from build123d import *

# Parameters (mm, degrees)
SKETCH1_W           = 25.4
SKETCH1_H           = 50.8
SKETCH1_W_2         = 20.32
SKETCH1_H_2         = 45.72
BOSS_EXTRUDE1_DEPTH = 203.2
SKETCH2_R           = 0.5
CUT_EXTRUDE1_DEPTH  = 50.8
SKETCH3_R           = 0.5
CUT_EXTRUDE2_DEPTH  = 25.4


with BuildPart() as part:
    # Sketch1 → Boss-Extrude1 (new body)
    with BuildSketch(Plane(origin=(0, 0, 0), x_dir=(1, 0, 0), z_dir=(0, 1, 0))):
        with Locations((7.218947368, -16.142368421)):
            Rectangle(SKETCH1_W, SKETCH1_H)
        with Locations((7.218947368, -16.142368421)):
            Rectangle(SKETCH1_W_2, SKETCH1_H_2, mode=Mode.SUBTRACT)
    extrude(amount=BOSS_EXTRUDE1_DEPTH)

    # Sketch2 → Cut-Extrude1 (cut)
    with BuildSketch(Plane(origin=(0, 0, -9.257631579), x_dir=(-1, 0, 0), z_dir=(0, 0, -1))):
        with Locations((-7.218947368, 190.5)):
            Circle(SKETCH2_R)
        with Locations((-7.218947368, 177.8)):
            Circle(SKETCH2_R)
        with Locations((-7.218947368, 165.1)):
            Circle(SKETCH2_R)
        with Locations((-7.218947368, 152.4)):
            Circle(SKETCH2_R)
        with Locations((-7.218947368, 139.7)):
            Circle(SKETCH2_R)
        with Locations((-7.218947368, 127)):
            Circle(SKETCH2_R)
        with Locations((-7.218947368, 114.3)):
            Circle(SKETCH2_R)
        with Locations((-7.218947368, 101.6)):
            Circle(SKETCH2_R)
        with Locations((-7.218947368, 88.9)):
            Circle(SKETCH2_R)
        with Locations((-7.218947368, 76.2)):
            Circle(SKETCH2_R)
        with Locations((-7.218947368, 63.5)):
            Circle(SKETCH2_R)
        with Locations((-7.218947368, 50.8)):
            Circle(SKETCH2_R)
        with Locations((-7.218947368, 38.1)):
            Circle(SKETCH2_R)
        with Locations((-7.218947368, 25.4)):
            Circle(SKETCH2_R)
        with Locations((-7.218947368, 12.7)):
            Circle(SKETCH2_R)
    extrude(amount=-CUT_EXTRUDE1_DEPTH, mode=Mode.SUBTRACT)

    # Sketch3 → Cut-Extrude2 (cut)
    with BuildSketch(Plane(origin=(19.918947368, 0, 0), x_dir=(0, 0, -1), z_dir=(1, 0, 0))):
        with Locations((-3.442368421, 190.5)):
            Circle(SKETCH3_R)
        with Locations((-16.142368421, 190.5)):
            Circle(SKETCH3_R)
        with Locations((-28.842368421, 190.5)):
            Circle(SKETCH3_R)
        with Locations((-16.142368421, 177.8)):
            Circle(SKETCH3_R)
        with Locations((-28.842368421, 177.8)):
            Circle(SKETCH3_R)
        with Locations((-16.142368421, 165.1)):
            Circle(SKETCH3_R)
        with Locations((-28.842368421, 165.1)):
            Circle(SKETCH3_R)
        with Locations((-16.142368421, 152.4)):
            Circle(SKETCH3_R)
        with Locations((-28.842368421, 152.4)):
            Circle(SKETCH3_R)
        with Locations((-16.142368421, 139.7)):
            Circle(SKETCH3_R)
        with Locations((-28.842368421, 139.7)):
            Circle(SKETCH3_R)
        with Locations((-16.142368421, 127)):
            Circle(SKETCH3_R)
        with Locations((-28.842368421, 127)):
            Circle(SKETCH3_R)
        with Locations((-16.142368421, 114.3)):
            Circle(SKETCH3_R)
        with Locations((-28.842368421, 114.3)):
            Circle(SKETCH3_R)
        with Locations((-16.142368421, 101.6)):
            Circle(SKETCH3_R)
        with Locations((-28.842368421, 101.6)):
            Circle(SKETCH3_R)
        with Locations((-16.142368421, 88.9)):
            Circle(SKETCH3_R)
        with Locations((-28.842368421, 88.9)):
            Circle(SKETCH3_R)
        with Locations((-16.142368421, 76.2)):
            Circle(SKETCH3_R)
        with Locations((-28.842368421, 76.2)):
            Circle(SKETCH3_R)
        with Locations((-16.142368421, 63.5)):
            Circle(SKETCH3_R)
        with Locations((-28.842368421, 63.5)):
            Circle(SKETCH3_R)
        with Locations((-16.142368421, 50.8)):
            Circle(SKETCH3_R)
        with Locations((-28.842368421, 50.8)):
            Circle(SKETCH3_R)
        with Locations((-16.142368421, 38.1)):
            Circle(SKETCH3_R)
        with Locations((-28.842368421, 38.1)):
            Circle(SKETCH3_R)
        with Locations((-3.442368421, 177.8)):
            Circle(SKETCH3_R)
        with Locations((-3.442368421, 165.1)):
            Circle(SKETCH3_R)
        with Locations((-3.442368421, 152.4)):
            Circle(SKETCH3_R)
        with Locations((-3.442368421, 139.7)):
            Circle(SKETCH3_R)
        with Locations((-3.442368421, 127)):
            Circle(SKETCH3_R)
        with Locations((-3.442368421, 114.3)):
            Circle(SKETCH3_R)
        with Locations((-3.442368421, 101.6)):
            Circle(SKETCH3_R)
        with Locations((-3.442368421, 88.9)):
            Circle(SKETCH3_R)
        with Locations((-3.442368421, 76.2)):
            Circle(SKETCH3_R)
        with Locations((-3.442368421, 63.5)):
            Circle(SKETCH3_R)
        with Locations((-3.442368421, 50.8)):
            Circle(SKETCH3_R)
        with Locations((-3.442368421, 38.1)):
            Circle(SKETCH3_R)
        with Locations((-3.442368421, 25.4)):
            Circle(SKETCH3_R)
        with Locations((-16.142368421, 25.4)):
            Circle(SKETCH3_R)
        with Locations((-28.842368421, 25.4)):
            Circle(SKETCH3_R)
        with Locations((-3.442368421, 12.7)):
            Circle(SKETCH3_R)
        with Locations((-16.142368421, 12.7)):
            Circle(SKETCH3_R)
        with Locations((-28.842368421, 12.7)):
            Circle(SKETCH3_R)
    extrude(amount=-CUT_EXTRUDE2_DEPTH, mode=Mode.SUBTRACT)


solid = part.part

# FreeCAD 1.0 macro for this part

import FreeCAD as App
import Part
import Sketcher
Q = App.Units.Quantity


def add_polygon(sketch, points):
    """Adds a closed chain of lines whose ends are joined by coincident constraints."""
    first, n = sketch.GeometryCount, len(points)
    for a, b in zip(points, points[1:] + points[:1]):
        sketch.addGeometry(Part.LineSegment(App.Vector(*a, 0), App.Vector(*b, 0)), False)
    for i in range(n):
        sketch.addConstraint(Sketcher.Constraint("Coincident", first + i, 2, first + (i + 1) % n, 1))

doc = App.newDocument("Part")
body = doc.addObject("PartDesign::Body", "Body")

# Sketch on XZ plane
sketch1 = doc.addObject("Sketcher::SketchObject", "Sketch")
body.addObject(sketch1)
sketch1.AttachmentSupport = (doc.XZ_Plane, [""])
sketch1.MapMode = "FlatFace"
add_polygon(sketch1, [(-5.481053, -9.257632), (-5.481053, 41.542368), (19.918947, 41.542368), (19.918947, -9.257632)])  # lines 0-3
add_polygon(sketch1, [(17.378947, 39.002368), (-2.941053, 39.002368), (-2.941053, -6.717632), (17.378947, -6.717632)])  # lines 4-7
sketch1.addConstraint([
    Sketcher.Constraint("Vertical", 0),
    Sketcher.Constraint("Horizontal", 1),
    Sketcher.Constraint("Vertical", 2),
    Sketcher.Constraint("Horizontal", 3),
    Sketcher.Constraint("Horizontal", 4),
    Sketcher.Constraint("Vertical", 5),
    Sketcher.Constraint("Horizontal", 6),
    Sketcher.Constraint("Vertical", 7),
    Sketcher.Constraint("DistanceX", 1, 1, 1, 2, Q("1 in")),
    Sketcher.Constraint("DistanceY", 0, 1, 0, 2, Q("2 in")),
    Sketcher.Constraint("DistanceX", 4, 2, 4, 1, Q("0.8 in")),
    Sketcher.Constraint("DistanceY", 5, 2, 5, 1, Q("1.8 in")),
    Sketcher.Constraint("DistanceX", 0, 2, 4, 2, Q("0.1 in")),
    Sketcher.Constraint("DistanceY", 4, 2, 0, 2, Q("0.1 in")),
    Sketcher.Constraint("DistanceY", -1, 1, 0, 2, 41.542368),
    Sketcher.Constraint("DistanceX", 0, 2, -1, 1, 5.481053),
])
pad1 = doc.addObject("PartDesign::Pad", "Pad")
body.addObject(pad1)
pad1.Profile = sketch1
pad1.Length = Q("8 in")
pad1.Reversed = True

# Sketch on XY plane
sketch2 = doc.addObject("Sketcher::SketchObject", "Sketch001")
body.addObject(sketch2)
sketch2.AttachmentSupport = (doc.XY_Plane, [""])
sketch2.MapMode = "FlatFace"
sketch2.AttachmentOffset = App.Placement(App.Vector(0, 0, -9.257632), App.Rotation())
sketch2.addGeometry([
    Part.Circle(App.Vector(7.218947, 190.5, 0), App.Vector(0, 0, 1), 0.5),  # 0
    Part.Circle(App.Vector(7.218947, 177.8, 0), App.Vector(0, 0, 1), 0.5),  # 1
    Part.Circle(App.Vector(7.218947, 165.1, 0), App.Vector(0, 0, 1), 0.5),  # 2
    Part.Circle(App.Vector(7.218947, 152.4, 0), App.Vector(0, 0, 1), 0.5),  # 3
    Part.Circle(App.Vector(7.218947, 139.7, 0), App.Vector(0, 0, 1), 0.5),  # 4
    Part.Circle(App.Vector(7.218947, 127, 0), App.Vector(0, 0, 1), 0.5),  # 5
    Part.Circle(App.Vector(7.218947, 114.3, 0), App.Vector(0, 0, 1), 0.5),  # 6
    Part.Circle(App.Vector(7.218947, 101.6, 0), App.Vector(0, 0, 1), 0.5),  # 7
    Part.Circle(App.Vector(7.218947, 88.9, 0), App.Vector(0, 0, 1), 0.5),  # 8
    Part.Circle(App.Vector(7.218947, 76.2, 0), App.Vector(0, 0, 1), 0.5),  # 9
    Part.Circle(App.Vector(7.218947, 63.5, 0), App.Vector(0, 0, 1), 0.5),  # 10
    Part.Circle(App.Vector(7.218947, 50.8, 0), App.Vector(0, 0, 1), 0.5),  # 11
    Part.Circle(App.Vector(7.218947, 38.1, 0), App.Vector(0, 0, 1), 0.5),  # 12
    Part.Circle(App.Vector(7.218947, 25.4, 0), App.Vector(0, 0, 1), 0.5),  # 13
    Part.Circle(App.Vector(7.218947, 12.7, 0), App.Vector(0, 0, 1), 0.5),  # 14
], False)
sketch2.addConstraint([
    Sketcher.Constraint("Equal", 0, 1),
    Sketcher.Constraint("Equal", 1, 2),
    Sketcher.Constraint("Equal", 2, 3),
    Sketcher.Constraint("Equal", 3, 4),
    Sketcher.Constraint("Equal", 4, 5),
    Sketcher.Constraint("Equal", 5, 6),
    Sketcher.Constraint("Equal", 6, 7),
    Sketcher.Constraint("Equal", 7, 8),
    Sketcher.Constraint("Equal", 8, 9),
    Sketcher.Constraint("Equal", 9, 10),
    Sketcher.Constraint("Equal", 10, 11),
    Sketcher.Constraint("Equal", 11, 12),
    Sketcher.Constraint("Equal", 12, 13),
    Sketcher.Constraint("Equal", 13, 14),
    Sketcher.Constraint("Vertical", 0, 3, 1, 3),
    Sketcher.Constraint("Vertical", 1, 3, 2, 3),
    Sketcher.Constraint("Vertical", 2, 3, 3, 3),
    Sketcher.Constraint("Vertical", 3, 3, 4, 3),
    Sketcher.Constraint("Vertical", 4, 3, 5, 3),
    Sketcher.Constraint("Vertical", 5, 3, 6, 3),
    Sketcher.Constraint("Vertical", 6, 3, 7, 3),
    Sketcher.Constraint("Vertical", 7, 3, 8, 3),
    Sketcher.Constraint("Vertical", 8, 3, 9, 3),
    Sketcher.Constraint("Vertical", 9, 3, 10, 3),
    Sketcher.Constraint("Vertical", 10, 3, 11, 3),
    Sketcher.Constraint("Vertical", 11, 3, 12, 3),
    Sketcher.Constraint("Vertical", 12, 3, 13, 3),
    Sketcher.Constraint("Vertical", 13, 3, 14, 3),
    Sketcher.Constraint("DistanceY", -1, 1, 1, 3, Q("7 in")),
    Sketcher.Constraint("DistanceY", -1, 1, 3, 3, Q("6 in")),
    Sketcher.Constraint("DistanceY", -1, 1, 5, 3, Q("5 in")),
    Sketcher.Constraint("DistanceY", -1, 1, 7, 3, Q("4 in")),
    Sketcher.Constraint("DistanceY", -1, 1, 9, 3, Q("3 in")),
    Sketcher.Constraint("DistanceY", -1, 1, 11, 3, Q("2 in")),
    Sketcher.Constraint("DistanceY", -1, 1, 13, 3, Q("1 in")),
    Sketcher.Constraint("DistanceY", 2, 3, 0, 3, Q("1 in")),
    Sketcher.Constraint("DistanceY", 4, 3, 2, 3, Q("1 in")),
    Sketcher.Constraint("DistanceY", 6, 3, 4, 3, Q("1 in")),
    Sketcher.Constraint("DistanceY", 8, 3, 6, 3, Q("1 in")),
    Sketcher.Constraint("DistanceY", 10, 3, 8, 3, Q("1 in")),
    Sketcher.Constraint("DistanceY", 12, 3, 10, 3, Q("1 in")),
    Sketcher.Constraint("DistanceY", 14, 3, 12, 3, Q("1 in")),
    Sketcher.Constraint("DistanceY", -1, 1, 0, 3, Q("7.5 in")),
    Sketcher.Constraint("Diameter", 0, 1.0),
    Sketcher.Constraint("DistanceX", -1, 1, 0, 3, 7.218947),
])
pocket1 = doc.addObject("PartDesign::Pocket", "Pocket")
body.addObject(pocket1)
pocket1.Profile = sketch2
pocket1.Length = Q("2 in")
pocket1.Reversed = True

# Sketch on YZ plane
sketch3 = doc.addObject("Sketcher::SketchObject", "Sketch002")
body.addObject(sketch3)
sketch3.AttachmentSupport = (doc.YZ_Plane, [""])
sketch3.MapMode = "FlatFace"
sketch3.AttachmentOffset = App.Placement(App.Vector(0, 0, 19.918947), App.Rotation())
sketch3.addGeometry([
    Part.Circle(App.Vector(190.5, 3.442368, 0), App.Vector(0, 0, 1), 0.5),  # 0
    Part.Circle(App.Vector(190.5, 16.142368, 0), App.Vector(0, 0, 1), 0.5),  # 1
    Part.Circle(App.Vector(190.5, 28.842368, 0), App.Vector(0, 0, 1), 0.5),  # 2
    Part.Circle(App.Vector(177.8, 16.142368, 0), App.Vector(0, 0, 1), 0.5),  # 3
    Part.Circle(App.Vector(177.8, 28.842368, 0), App.Vector(0, 0, 1), 0.5),  # 4
    Part.Circle(App.Vector(165.1, 16.142368, 0), App.Vector(0, 0, 1), 0.5),  # 5
    Part.Circle(App.Vector(165.1, 28.842368, 0), App.Vector(0, 0, 1), 0.5),  # 6
    Part.Circle(App.Vector(152.4, 16.142368, 0), App.Vector(0, 0, 1), 0.5),  # 7
    Part.Circle(App.Vector(152.4, 28.842368, 0), App.Vector(0, 0, 1), 0.5),  # 8
    Part.Circle(App.Vector(139.7, 16.142368, 0), App.Vector(0, 0, 1), 0.5),  # 9
    Part.Circle(App.Vector(139.7, 28.842368, 0), App.Vector(0, 0, 1), 0.5),  # 10
    Part.Circle(App.Vector(127, 16.142368, 0), App.Vector(0, 0, 1), 0.5),  # 11
    Part.Circle(App.Vector(127, 28.842368, 0), App.Vector(0, 0, 1), 0.5),  # 12
    Part.Circle(App.Vector(114.3, 16.142368, 0), App.Vector(0, 0, 1), 0.5),  # 13
    Part.Circle(App.Vector(114.3, 28.842368, 0), App.Vector(0, 0, 1), 0.5),  # 14
    Part.Circle(App.Vector(101.6, 16.142368, 0), App.Vector(0, 0, 1), 0.5),  # 15
    Part.Circle(App.Vector(101.6, 28.842368, 0), App.Vector(0, 0, 1), 0.5),  # 16
    Part.Circle(App.Vector(88.9, 16.142368, 0), App.Vector(0, 0, 1), 0.5),  # 17
    Part.Circle(App.Vector(88.9, 28.842368, 0), App.Vector(0, 0, 1), 0.5),  # 18
    Part.Circle(App.Vector(76.2, 16.142368, 0), App.Vector(0, 0, 1), 0.5),  # 19
    Part.Circle(App.Vector(76.2, 28.842368, 0), App.Vector(0, 0, 1), 0.5),  # 20
    Part.Circle(App.Vector(63.5, 16.142368, 0), App.Vector(0, 0, 1), 0.5),  # 21
    Part.Circle(App.Vector(63.5, 28.842368, 0), App.Vector(0, 0, 1), 0.5),  # 22
    Part.Circle(App.Vector(50.8, 16.142368, 0), App.Vector(0, 0, 1), 0.5),  # 23
    Part.Circle(App.Vector(50.8, 28.842368, 0), App.Vector(0, 0, 1), 0.5),  # 24
    Part.Circle(App.Vector(38.1, 16.142368, 0), App.Vector(0, 0, 1), 0.5),  # 25
    Part.Circle(App.Vector(38.1, 28.842368, 0), App.Vector(0, 0, 1), 0.5),  # 26
    Part.Circle(App.Vector(177.8, 3.442368, 0), App.Vector(0, 0, 1), 0.5),  # 27
    Part.Circle(App.Vector(165.1, 3.442368, 0), App.Vector(0, 0, 1), 0.5),  # 28
    Part.Circle(App.Vector(152.4, 3.442368, 0), App.Vector(0, 0, 1), 0.5),  # 29
    Part.Circle(App.Vector(139.7, 3.442368, 0), App.Vector(0, 0, 1), 0.5),  # 30
    Part.Circle(App.Vector(127, 3.442368, 0), App.Vector(0, 0, 1), 0.5),  # 31
    Part.Circle(App.Vector(114.3, 3.442368, 0), App.Vector(0, 0, 1), 0.5),  # 32
    Part.Circle(App.Vector(101.6, 3.442368, 0), App.Vector(0, 0, 1), 0.5),  # 33
    Part.Circle(App.Vector(88.9, 3.442368, 0), App.Vector(0, 0, 1), 0.5),  # 34
    Part.Circle(App.Vector(76.2, 3.442368, 0), App.Vector(0, 0, 1), 0.5),  # 35
    Part.Circle(App.Vector(63.5, 3.442368, 0), App.Vector(0, 0, 1), 0.5),  # 36
    Part.Circle(App.Vector(50.8, 3.442368, 0), App.Vector(0, 0, 1), 0.5),  # 37
    Part.Circle(App.Vector(38.1, 3.442368, 0), App.Vector(0, 0, 1), 0.5),  # 38
    Part.Circle(App.Vector(25.4, 3.442368, 0), App.Vector(0, 0, 1), 0.5),  # 39
    Part.Circle(App.Vector(25.4, 16.142368, 0), App.Vector(0, 0, 1), 0.5),  # 40
    Part.Circle(App.Vector(25.4, 28.842368, 0), App.Vector(0, 0, 1), 0.5),  # 41
    Part.Circle(App.Vector(12.7, 3.442368, 0), App.Vector(0, 0, 1), 0.5),  # 42
    Part.Circle(App.Vector(12.7, 16.142368, 0), App.Vector(0, 0, 1), 0.5),  # 43
    Part.Circle(App.Vector(12.7, 28.842368, 0), App.Vector(0, 0, 1), 0.5),  # 44
], False)
sketch3.addConstraint([
    Sketcher.Constraint("Equal", 0, 1),
    Sketcher.Constraint("Equal", 1, 2),
    Sketcher.Constraint("Equal", 2, 3),
    Sketcher.Constraint("Equal", 3, 4),
    Sketcher.Constraint("Equal", 4, 5),
    Sketcher.Constraint("Equal", 5, 6),
    Sketcher.Constraint("Equal", 6, 7),
    Sketcher.Constraint("Equal", 7, 8),
    Sketcher.Constraint("Equal", 8, 9),
    Sketcher.Constraint("Equal", 9, 10),
    Sketcher.Constraint("Equal", 10, 11),
    Sketcher.Constraint("Equal", 11, 12),
    Sketcher.Constraint("Equal", 12, 13),
    Sketcher.Constraint("Equal", 13, 14),
    Sketcher.Constraint("Equal", 14, 15),
    Sketcher.Constraint("Equal", 15, 16),
    Sketcher.Constraint("Equal", 16, 17),
    Sketcher.Constraint("Equal", 17, 18),
    Sketcher.Constraint("Equal", 18, 19),
    Sketcher.Constraint("Equal", 19, 20),
    Sketcher.Constraint("Equal", 20, 21),
    Sketcher.Constraint("Equal", 21, 22),
    Sketcher.Constraint("Equal", 22, 23),
    Sketcher.Constraint("Equal", 23, 24),
    Sketcher.Constraint("Equal", 24, 25),
    Sketcher.Constraint("Equal", 25, 26),
    Sketcher.Constraint("Equal", 26, 27),
    Sketcher.Constraint("Equal", 27, 28),
    Sketcher.Constraint("Equal", 28, 29),
    Sketcher.Constraint("Equal", 29, 30),
    Sketcher.Constraint("Equal", 30, 31),
    Sketcher.Constraint("Equal", 31, 32),
    Sketcher.Constraint("Equal", 32, 33),
    Sketcher.Constraint("Equal", 33, 34),
    Sketcher.Constraint("Equal", 34, 35),
    Sketcher.Constraint("Equal", 35, 36),
    Sketcher.Constraint("Equal", 36, 37),
    Sketcher.Constraint("Equal", 37, 38),
    Sketcher.Constraint("Equal", 38, 39),
    Sketcher.Constraint("Equal", 39, 40),
    Sketcher.Constraint("Equal", 40, 41),
    Sketcher.Constraint("Equal", 41, 42),
    Sketcher.Constraint("Equal", 42, 43),
    Sketcher.Constraint("Equal", 43, 44),
    Sketcher.Constraint("Horizontal", 1, 3, 3, 3),
    Sketcher.Constraint("Horizontal", 2, 3, 4, 3),
    Sketcher.Constraint("Horizontal", 3, 3, 5, 3),
    Sketcher.Constraint("Horizontal", 4, 3, 6, 3),
    Sketcher.Constraint("Horizontal", 5, 3, 7, 3),
    Sketcher.Constraint("Horizontal", 6, 3, 8, 3),
    Sketcher.Constraint("Horizontal", 7, 3, 9, 3),
    Sketcher.Constraint("Horizontal", 8, 3, 10, 3),
    Sketcher.Constraint("Horizontal", 9, 3, 11, 3),
    Sketcher.Constraint("Horizontal", 10, 3, 12, 3),
    Sketcher.Constraint("Horizontal", 11, 3, 13, 3),
    Sketcher.Constraint("Horizontal", 12, 3, 14, 3),
    Sketcher.Constraint("Horizontal", 13, 3, 15, 3),
    Sketcher.Constraint("Horizontal", 14, 3, 16, 3),
    Sketcher.Constraint("Horizontal", 15, 3, 17, 3),
    Sketcher.Constraint("Horizontal", 16, 3, 18, 3),
    Sketcher.Constraint("Horizontal", 17, 3, 19, 3),
    Sketcher.Constraint("Horizontal", 18, 3, 20, 3),
    Sketcher.Constraint("Horizontal", 19, 3, 21, 3),
    Sketcher.Constraint("Horizontal", 20, 3, 22, 3),
    Sketcher.Constraint("Horizontal", 21, 3, 23, 3),
    Sketcher.Constraint("Horizontal", 22, 3, 24, 3),
    Sketcher.Constraint("Horizontal", 23, 3, 25, 3),
    Sketcher.Constraint("Horizontal", 24, 3, 26, 3),
    Sketcher.Constraint("Horizontal", 0, 3, 27, 3),
    Sketcher.Constraint("Horizontal", 27, 3, 28, 3),
    Sketcher.Constraint("Horizontal", 28, 3, 29, 3),
    Sketcher.Constraint("Horizontal", 29, 3, 30, 3),
    Sketcher.Constraint("Horizontal", 30, 3, 31, 3),
    Sketcher.Constraint("Horizontal", 31, 3, 32, 3),
    Sketcher.Constraint("Horizontal", 32, 3, 33, 3),
    Sketcher.Constraint("Horizontal", 33, 3, 34, 3),
    Sketcher.Constraint("Horizontal", 34, 3, 35, 3),
    Sketcher.Constraint("Horizontal", 35, 3, 36, 3),
    Sketcher.Constraint("Horizontal", 36, 3, 37, 3),
    Sketcher.Constraint("Horizontal", 37, 3, 38, 3),
    Sketcher.Constraint("Horizontal", 38, 3, 39, 3),
    Sketcher.Constraint("Horizontal", 25, 3, 40, 3),
    Sketcher.Constraint("Horizontal", 26, 3, 41, 3),
    Sketcher.Constraint("Horizontal", 39, 3, 42, 3),
    Sketcher.Constraint("Horizontal", 40, 3, 43, 3),
    Sketcher.Constraint("Horizontal", 41, 3, 44, 3),
    Sketcher.Constraint("Vertical", 0, 3, 1, 3),
    Sketcher.Constraint("Vertical", 1, 3, 2, 3),
    Sketcher.Constraint("Vertical", 3, 3, 4, 3),
    Sketcher.Constraint("Vertical", 5, 3, 6, 3),
    Sketcher.Constraint("Vertical", 7, 3, 8, 3),
    Sketcher.Constraint("Vertical", 9, 3, 10, 3),
    Sketcher.Constraint("Vertical", 11, 3, 12, 3),
    Sketcher.Constraint("Vertical", 13, 3, 14, 3),
    Sketcher.Constraint("Vertical", 15, 3, 16, 3),
    Sketcher.Constraint("Vertical", 17, 3, 18, 3),
    Sketcher.Constraint("Vertical", 19, 3, 20, 3),
    Sketcher.Constraint("Vertical", 21, 3, 22, 3),
    Sketcher.Constraint("Vertical", 23, 3, 24, 3),
    Sketcher.Constraint("Vertical", 25, 3, 26, 3),
    Sketcher.Constraint("Vertical", 4, 3, 27, 3),
    Sketcher.Constraint("Vertical", 6, 3, 28, 3),
    Sketcher.Constraint("Vertical", 8, 3, 29, 3),
    Sketcher.Constraint("Vertical", 10, 3, 30, 3),
    Sketcher.Constraint("Vertical", 12, 3, 31, 3),
    Sketcher.Constraint("Vertical", 14, 3, 32, 3),
    Sketcher.Constraint("Vertical", 16, 3, 33, 3),
    Sketcher.Constraint("Vertical", 18, 3, 34, 3),
    Sketcher.Constraint("Vertical", 20, 3, 35, 3),
    Sketcher.Constraint("Vertical", 22, 3, 36, 3),
    Sketcher.Constraint("Vertical", 24, 3, 37, 3),
    Sketcher.Constraint("Vertical", 26, 3, 38, 3),
    Sketcher.Constraint("Vertical", 39, 3, 40, 3),
    Sketcher.Constraint("Vertical", 40, 3, 41, 3),
    Sketcher.Constraint("Vertical", 42, 3, 43, 3),
    Sketcher.Constraint("Vertical", 43, 3, 44, 3),
    Sketcher.Constraint("DistanceX", -1, 1, 3, 3, Q("7 in")),
    Sketcher.Constraint("DistanceX", -1, 1, 7, 3, Q("6 in")),
    Sketcher.Constraint("DistanceX", -1, 1, 11, 3, Q("5 in")),
    Sketcher.Constraint("DistanceX", -1, 1, 15, 3, Q("4 in")),
    Sketcher.Constraint("DistanceX", -1, 1, 19, 3, Q("3 in")),
    Sketcher.Constraint("DistanceX", -1, 1, 23, 3, Q("2 in")),
    Sketcher.Constraint("DistanceX", -1, 1, 39, 3, Q("1 in")),
    Sketcher.Constraint("DistanceY", 0, 3, 2, 3, Q("1 in")),
    Sketcher.Constraint("DistanceX", 5, 3, 1, 3, Q("1 in")),
    Sketcher.Constraint("DistanceX", 9, 3, 5, 3, Q("1 in")),
    Sketcher.Constraint("DistanceX", 13, 3, 9, 3, Q("1 in")),
    Sketcher.Constraint("DistanceX", 17, 3, 13, 3, Q("1 in")),
    Sketcher.Constraint("DistanceX", 21, 3, 17, 3, Q("1 in")),
    Sketcher.Constraint("DistanceX", 25, 3, 21, 3, Q("1 in")),
    Sketcher.Constraint("DistanceX", 42, 3, 38, 3, Q("1 in")),
    Sketcher.Constraint("DistanceX", -1, 1, 0, 3, Q("7.5 in")),
    Sketcher.Constraint("DistanceY", 0, 3, 1, 3, Q("0.5 in")),
    Sketcher.Constraint("Diameter", 0, 1.0),
    Sketcher.Constraint("DistanceY", -1, 1, 0, 3, 3.442368),
])
pocket2 = doc.addObject("PartDesign::Pocket", "Pocket001")
body.addObject(pocket2)
pocket2.Profile = sketch3
pocket2.Length = Q("1 in")

doc.recompute()
